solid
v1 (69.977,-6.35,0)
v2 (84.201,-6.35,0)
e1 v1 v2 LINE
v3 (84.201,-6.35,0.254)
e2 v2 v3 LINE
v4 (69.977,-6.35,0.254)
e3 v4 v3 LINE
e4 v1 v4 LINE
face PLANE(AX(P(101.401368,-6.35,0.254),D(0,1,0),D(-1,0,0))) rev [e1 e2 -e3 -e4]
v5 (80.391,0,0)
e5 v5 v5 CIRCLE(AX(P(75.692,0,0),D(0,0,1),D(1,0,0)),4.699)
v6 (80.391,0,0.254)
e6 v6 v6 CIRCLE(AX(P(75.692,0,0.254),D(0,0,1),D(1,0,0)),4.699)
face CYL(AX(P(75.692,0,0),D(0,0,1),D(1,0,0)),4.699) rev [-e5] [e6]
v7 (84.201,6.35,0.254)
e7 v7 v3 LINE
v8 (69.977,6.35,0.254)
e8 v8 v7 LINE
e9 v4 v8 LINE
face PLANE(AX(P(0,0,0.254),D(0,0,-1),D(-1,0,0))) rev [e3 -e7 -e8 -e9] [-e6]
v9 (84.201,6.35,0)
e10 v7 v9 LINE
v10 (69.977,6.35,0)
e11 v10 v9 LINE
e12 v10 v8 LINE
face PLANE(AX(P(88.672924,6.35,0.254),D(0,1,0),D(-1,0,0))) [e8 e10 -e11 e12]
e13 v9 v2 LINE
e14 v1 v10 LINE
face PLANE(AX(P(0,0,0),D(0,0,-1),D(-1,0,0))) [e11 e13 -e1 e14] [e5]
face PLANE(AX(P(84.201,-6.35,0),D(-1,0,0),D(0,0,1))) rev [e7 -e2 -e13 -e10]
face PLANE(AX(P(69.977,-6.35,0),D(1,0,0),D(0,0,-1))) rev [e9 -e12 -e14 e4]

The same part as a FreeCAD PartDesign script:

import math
import FreeCAD as App
import Part
import Sketcher

V = App.Vector
Q = App.Units.Quantity


def add_polygon(sketch, points):
    """Adds a closed chain of lines whose ends are joined by coincident constraints."""
    first, n = sketch.GeometryCount, len(points)
    for a, b in zip(points, points[1:] + points[:1]):
        sketch.addGeometry(Part.LineSegment(App.Vector(*a, 0), App.Vector(*b, 0)), False)
    for i in range(n):
        sketch.addConstraint(Sketcher.Constraint("Coincident", first + i, 2, first + (i + 1) % n, 1))

doc = App.newDocument("Part")
body = doc.addObject("PartDesign::Body", "Body")

sketch1 = doc.addObject("Sketcher::SketchObject", "Sketch")
body.addObject(sketch1)
sketch1.AttachmentSupport = (doc.XY_Plane, [""])
sketch1.MapMode = "FlatFace"
sketch1.addGeometry([
    Part.LineSegment(V(67.2, 76.2, 0), V(8.7, 17.7, 0)),
    Part.LineSegment(V(8.7, 17.7, 0), V(7.2, 14.1, 0)),
    Part.ArcOfCircle(Part.Circle(V(0, 0, 0), V(0, 0, 1), 15.9), math.radians(-18), math.radians(63)),
    Part.LineSegment(V(15.1, -4.9, 0), V(18.6, -6.3, 0)),
    Part.LineSegment(V(18.6, -6.3, 0), V(101.4, -6.3, 0)),
    Part.ArcOfCircle(Part.Circle(V(0, 0, 0), V(0, 0, 1), 101.6), math.radians(-4), math.radians(49)),
    Part.ArcOfCircle(Part.Circle(V(0, 0, 0), V(0, 0, 1), 88.9), math.radians(4), math.radians(41)),
    Part.LineSegment(V(88.7, 6.3, 0), V(27.9, 6.3, 0)),
    Part.ArcOfCircle(Part.Circle(V(0, 0, 0), V(0, 0, 1), 28.6), math.radians(12.84), math.radians(32.16)),
    Part.LineSegment(V(24.2, 15.2, 0), V(67.2, 58.2, 0)),
], False)
sketch1.addConstraint([
    Sketcher.Constraint("Coincident", 0, 2, 1, 1),
    Sketcher.Constraint("Coincident", 1, 2, 2, 2),
    Sketcher.Constraint("Coincident", 2, 1, 3, 1),
    Sketcher.Constraint("Coincident", 3, 2, 4, 1),
    Sketcher.Constraint("Coincident", 4, 2, 5, 1),
    Sketcher.Constraint("Coincident", 5, 2, 0, 1),
    Sketcher.Constraint("Coincident", 6, 1, 7, 1),
    Sketcher.Constraint("Coincident", 7, 2, 8, 1),
    Sketcher.Constraint("Coincident", 8, 2, 9, 1),
    Sketcher.Constraint("Coincident", 9, 2, 6, 2),
    Sketcher.Constraint("Horizontal", 4),
    Sketcher.Constraint("Horizontal", 7),
    Sketcher.Constraint("Coincident", 2, 3, -1, 1),
    Sketcher.Constraint("Coincident", 5, 3, -1, 1),
    Sketcher.Constraint("Coincident", 6, 3, -1, 1),
    Sketcher.Constraint("Coincident", 8, 3, -1, 1),
    Sketcher.Constraint("Perpendicular", 1, 3),
    Sketcher.Constraint("Parallel", 0, 9),
    Sketcher.Constraint("Equal", 1, 3),
    Sketcher.Constraint("Radius", 5, Q("4 in")),
    Sketcher.Constraint("Radius", 6, Q("3.5 in")),
    Sketcher.Constraint("Angle", 0, Q("-135 deg")),
    Sketcher.Constraint("Radius", 2, Q("0.625 in")),
    Sketcher.Constraint("Radius", 8, Q("1.125 in")),
    Sketcher.Constraint("Angle", 1, Q("-112.5 deg")),
    Sketcher.Constraint("DistanceY", 4, 2, 6, 1, Q("0.5 in")),
    Sketcher.Constraint("DistanceY", 3, 2, -1, 1, Q("0.25 in")),
    Sketcher.Constraint("DistanceY", 2, 1, -1, 1, 4.882301),
    Sketcher.Constraint("DistanceY", -1, 1, 9, 2, 58.211098),
    Sketcher.Constraint("DistanceX", 5, 2, 4, 2, 34.189901),
])
pad1 = doc.addObject("PartDesign::Pad", "Pad")
body.addObject(pad1)
pad1.Profile = sketch1
pad1.Length = Q("0.01 in")

sketch2 = doc.addObject("Sketcher::SketchObject", "Sketch001")
body.addObject(sketch2)
sketch2.AttachmentSupport = (doc.XY_Plane, [""])
sketch2.MapMode = "FlatFace"
sketch2.AttachmentOffset = App.Placement(V(0, 0, 0.01 * 25.4), App.Rotation())
sketch2.addGeometry([
    Part.Circle(V(22.2, 0, 0), V(0, 0, 1), 4.7),
    Part.Circle(V(36.2, 0, 0), V(0, 0, 1), 4.7),
    Part.Circle(V(61.7, 0, 0), V(0, 0, 1), 4.7),
    Part.Circle(V(75.7, 0, 0), V(0, 0, 1), 4.7),
    Part.Circle(V(95.2, 0, 0), V(0, 0, 1), 4.7),
    Part.Circle(V(15.7, 15.7, 0), V(0, 0, 1), 4.7),
    Part.Circle(V(25.6, 25.6, 0), V(0, 0, 1), 4.7),
    Part.Circle(V(43.6, 43.6, 0), V(0, 0, 1), 4.7),
    Part.Circle(V(53.5, 53.5, 0), V(0, 0, 1), 4.7),
    Part.Circle(V(92, 24.7, 0), V(0, 0, 1), 4.7),
    Part.Circle(V(82.5, 47.6, 0), V(0, 0, 1), 4.7),
    Part.Circle(V(67.4, 67.4, 0), V(0, 0, 1), 4.7),
], False)
sketch2.addConstraint([
    Sketcher.Constraint("Equal", 0, 1),
    Sketcher.Constraint("Equal", 1, 2),
    Sketcher.Constraint("Equal", 2, 3),
    Sketcher.Constraint("Equal", 3, 4),
    Sketcher.Constraint("Equal", 4, 5),
    Sketcher.Constraint("Equal", 5, 6),
    Sketcher.Constraint("Equal", 6, 7),
    Sketcher.Constraint("Equal", 7, 8),
    Sketcher.Constraint("Equal", 8, 9),
    Sketcher.Constraint("Equal", 9, 10),
    Sketcher.Constraint("Equal", 10, 11),
    Sketcher.Constraint("PointOnObject", 0, 3, -1),
    Sketcher.Constraint("PointOnObject", 1, 3, -1),
    Sketcher.Constraint("PointOnObject", 2, 3, -1),
    Sketcher.Constraint("PointOnObject", 3, 3, -1),
    Sketcher.Constraint("PointOnObject", 4, 3, -1),
    Sketcher.Constraint("Diameter", 0, Q("0.37 in")),
    Sketcher.Constraint("DistanceX", -1, 1, 2, 3, Q("2.43 in")),
    Sketcher.Constraint("DistanceX", -1, 1, 3, 3, Q("2.98 in")),
    Sketcher.Constraint("DistanceX", -1, 1, 4, 3, Q("3.75 in")),
    Sketcher.Constraint("DistanceX", 0, 3, 1, 3, Q("0.55 in")),
    Sketcher.Constraint("DistanceX", -1, 1, 0, 3, Q("0.875 in")),
    Sketcher.Constraint("DistanceY", -1, 1, 10, 3, Q("1.875 in")),
    Sketcher.Constraint("DistanceX", 11, 3, 10, 3, 15.136999),
    Sketcher.Constraint("DistanceX", -1, 1, 5, 3, 15.715448),
    Sketcher.Constraint("DistanceY", -1, 1, 5, 3, 15.715448),
    Sketcher.Constraint("DistanceX", -1, 1, 6, 3, 25.59373),
    Sketcher.Constraint("DistanceY", -1, 1, 6, 3, 25.59373),
    Sketcher.Constraint("DistanceX", -1, 1, 10, 3, 82.48892),
    Sketcher.Constraint("DistanceY", -1, 1, 11, 3, 67.351921),
    Sketcher.Constraint("DistanceX", 7, 3, 8, 3, 9.878282),
    Sketcher.Constraint("DistanceY", 7, 3, 8, 3, 9.878282),
    Sketcher.Constraint("DistanceX", 5, 3, 8, 3, 37.806878),
    Sketcher.Constraint("DistanceY", 5, 3, 8, 3, 37.806878),
    Sketcher.Constraint("DistanceX", 8, 3, 9, 3, 38.482108),
    Sketcher.Constraint("DistanceY", 9, 3, 7, 3, 18.991531),
])
pocket1 = doc.addObject("PartDesign::Pocket", "Pocket")
body.addObject(pocket1)
pocket1.Profile = sketch2
pocket1.Type = "ThroughAll"

sketch3 = doc.addObject("Sketcher::SketchObject", "Sketch002")
body.addObject(sketch3)
sketch3.AttachmentSupport = (doc.XY_Plane, [""])
sketch3.MapMode = "FlatFace"
sketch3.AttachmentOffset = App.Placement(V(0, 0, 0.01 * 25.4), App.Rotation())
add_polygon(sketch3, [(17.1, 26), (15.3, 24.2), (15.7, 23.8), (17.5, 25.6)])
add_polygon(sketch3, [(45, 54), (43.2, 52.2), (43.6, 51.7), (45.4, 53.5)])
add_polygon(sketch3, [(27.9, -5.7), (27.9, -6.3), (30.5, -6.3), (30.5, -5.7)])
add_polygon(sketch3, [(67.4, -5.7), (67.4, -6.3), (70, -6.3), (70, -5.7)])
add_polygon(sketch3, [(31, 40), (29.2, 38.2), (29.7, 37.8), (31.5, 39.6)])
add_polygon(sketch3, [(56.8, 65.8), (55, 64), (55.5, 63.6), (57.3, 65.4)])
add_polygon(sketch3, [(47.7, -5.7), (47.7, -6.3), (50.2, -6.3), (50.2, -5.7)])
add_polygon(sketch3, [(84.2, -5.7), (84.2, -6.3), (86.7, -6.3), (86.7, -5.7)])
add_polygon(sketch3, [(99.9, 14.4), (100.3, 11.9), (101.5, 12.1), (101.2, 14.6)])
add_polygon(sketch3, [(93.8, 37.5), (94.9, 38), (94, 40.3), (92.8, 39.8)])
add_polygon(sketch3, [(79.3, 62.5), (80.9, 60.5), (81.9, 61.2), (80.3, 63.2)])
add_polygon(sketch3, [(13.6, 7), (14.6, 4.7), (15.7, 5.1), (14.8, 7.5)])
sketch3.addConstraint([
    Sketcher.Constraint("Vertical", 8),
    Sketcher.Constraint("Horizontal", 9),
    Sketcher.Constraint("Vertical", 10),
    Sketcher.Constraint("Horizontal", 11),
    Sketcher.Constraint("Vertical", 12),
    Sketcher.Constraint("Horizontal", 13),
    Sketcher.Constraint("Vertical", 14),
    Sketcher.Constraint("Horizontal", 15),
    Sketcher.Constraint("Vertical", 24),
    Sketcher.Constraint("Horizontal", 25),
    Sketcher.Constraint("Vertical", 26),
    Sketcher.Constraint("Horizontal", 27),
    Sketcher.Constraint("Vertical", 28),
    Sketcher.Constraint("Horizontal", 29),
    Sketcher.Constraint("Vertical", 30),
    Sketcher.Constraint("Horizontal", 31),
    Sketcher.Constraint("Perpendicular", 0, 1),
    Sketcher.Constraint("Perpendicular", 1, 2),
    Sketcher.Constraint("Perpendicular", 2, 3),
    Sketcher.Constraint("Perpendicular", 3, 4),
    Sketcher.Constraint("Perpendicular", 4, 5),
    Sketcher.Constraint("Perpendicular", 5, 6),
    Sketcher.Constraint("Perpendicular", 6, 7),
    Sketcher.Constraint("Perpendicular", 7, 16),
    Sketcher.Constraint("Perpendicular", 16, 17),
    Sketcher.Constraint("Perpendicular", 17, 18),
    Sketcher.Constraint("Perpendicular", 18, 19),
    Sketcher.Constraint("Perpendicular", 19, 20),
    Sketcher.Constraint("Perpendicular", 20, 21),
    Sketcher.Constraint("Perpendicular", 21, 22),
    Sketcher.Constraint("Perpendicular", 22, 23),
    Sketcher.Constraint("Perpendicular", 32, 33),
    Sketcher.Constraint("Perpendicular", 33, 34),
    Sketcher.Constraint("Perpendicular", 34, 35),
    Sketcher.Constraint("Perpendicular", 36, 37),
    Sketcher.Constraint("Perpendicular", 37, 38),
    Sketcher.Constraint("Perpendicular", 38, 39),
    Sketcher.Constraint("Perpendicular", 40, 41),
    Sketcher.Constraint("Perpendicular", 41, 42),
    Sketcher.Constraint("Perpendicular", 42, 43),
    Sketcher.Constraint("Parallel", 39, 44),
    Sketcher.Constraint("Perpendicular", 44, 45),
    Sketcher.Constraint("Perpendicular", 45, 46),
    Sketcher.Constraint("Perpendicular", 46, 47),
    Sketcher.Constraint("Horizontal", 9, 2, 12, 2),
    Sketcher.Constraint("Horizontal", 11, 2, 14, 2),
    Sketcher.Constraint("Horizontal", 13, 2, 24, 2),
    Sketcher.Constraint("Horizontal", 15, 2, 26, 2),
    Sketcher.Constraint("Horizontal", 25, 2, 28, 2),
    Sketcher.Constraint("Horizontal", 27, 2, 30, 2),
    Sketcher.Constraint("Equal", 11, 13),
    Sketcher.Constraint("Equal", 15, 25),
    Sketcher.Constraint("Equal", 27, 29),
    Sketcher.Constraint("Equal", 2, 4),
    Sketcher.Constraint("Equal", 3, 5),
    Sketcher.Constraint("Equal", 6, 16),
    Sketcher.Constraint("Equal", 7, 17),
    Sketcher.Constraint("Equal", 18, 20),
    Sketcher.Constraint("Equal", 19, 21),
    Sketcher.Constraint("Equal", 22, 32),
    Sketcher.Constraint("Equal", 35, 36),
    Sketcher.Constraint("Equal", 34, 37),
    Sketcher.Constraint("Equal", 39, 40),
    Sketcher.Constraint("Equal", 38, 41),
    Sketcher.Constraint("Equal", 42, 44),
    Sketcher.Constraint("Equal", 43, 45),
    Sketcher.Constraint("DistanceX", 9, 1, 9, 2, Q("0.1 in")),
    Sketcher.Constraint("Angle", 0, Q("-135 deg")),
    Sketcher.Constraint("Distance", 0, Q("0.1 in")),
    Sketcher.Constraint("DistanceX", -1, 1, 8, 2, Q("1.1 in")),
    Sketcher.Constraint("Angle", 32, Q("-82.5 deg")),
    Sketcher.Constraint("Angle", 36, Q("22.5 deg")),
    Sketcher.Constraint("Angle", 40, Q("-52.5 deg")),
    Sketcher.Constraint("Distance", 33, Q("0.05 in")),
    Sketcher.Constraint("DistanceY", 8, 2, 8, 1, Q("0.025 in")),
    Sketcher.Constraint("DistanceY", 8, 2, -1, 1, Q("0.25 in")),
    Sketcher.Constraint("DistanceX", 13, 2, 28, 2, Q("0.56 in")),
    Sketcher.Constraint("Distance", 1, Q("0.025 in")),
    Sketcher.Constraint("DistanceX", -1, 1, 12, 2, Q("2.655 in")),
    Sketcher.Constraint("DistanceX", -1, 1, 24, 2, Q("1.8775 in")),
    Sketcher.Constraint("DistanceX", -1, 1, 2, 2, 17.511499),
    Sketcher.Constraint("DistanceX", -1, 1, 32, 2, 100.266999),
    Sketcher.Constraint("DistanceX", 16, 2, 4, 2, 13.964298),
    Sketcher.Constraint("DistanceY", 16, 2, 4, 2, 13.964298),
    Sketcher.Constraint("DistanceX", 0, 2, 16, 2, 13.964298),
    Sketcher.Constraint("DistanceY", 0, 2, 16, 2, 13.964298),
    Sketcher.Constraint("DistanceY", 6, 2, 20, 2, 10.5069),
    Sketcher.Constraint("DistanceX", 7, 2, 21, 2, 10.5069),
    Sketcher.Constraint("DistanceY", 35, 2, 36, 2, 23.512602),
    Sketcher.Constraint("DistanceX", 36, 2, 33, 2, 6.587302),
    Sketcher.Constraint("DistanceY", 37, 2, 41, 2, 20.932198),
    Sketcher.Constraint("DistanceY", 41, 2, 22, 2, 4.147099),
    Sketcher.Constraint("DistanceY", 46, 2, 2, 2, 18.102299),
    Sketcher.Constraint("DistanceY", -1, 1, 0, 2, 24.246692),
    Sketcher.Constraint("DistanceX", -1, 1, 42, 2, 80.335352),
    Sketcher.Constraint("DistanceX", -1, 1, 45, 2, 15.739259),
])
pocket2 = doc.addObject("PartDesign::Pocket", "Pocket001")
body.addObject(pocket2)
pocket2.Profile = sketch3
pocket2.Type = "ThroughAll"

sketch4 = doc.addObject("Sketcher::SketchObject", "Sketch003")
body.addObject(sketch4)
sketch4.AttachmentSupport = (doc.XY_Plane, [""])
sketch4.MapMode = "FlatFace"
sketch4.AttachmentOffset = App.Placement(V(0, 0, 0.01 * 25.4), App.Rotation())
add_polygon(sketch4, [(-6, 90), (-6, -20), (115, -20), (115, 90)])
add_polygon(sketch4, [(84, -8), (70, -8), (70, 8), (84, 8)])
sketch4.addConstraint([
    Sketcher.Constraint("Vertical", 0),
    Sketcher.Constraint("Horizontal", 1),
    Sketcher.Constraint("Vertical", 2),
    Sketcher.Constraint("Horizontal", 3),
    Sketcher.Constraint("Horizontal", 4),
    Sketcher.Constraint("Vertical", 5),
    Sketcher.Constraint("Horizontal", 6),
    Sketcher.Constraint("Vertical", 7),
    Sketcher.Constraint("DistanceY", 5, 1, 5, 2, Q("0.6 in")),
    Sketcher.Constraint("DistanceX", 4, 2, 4, 1, Q("0.56 in")),
    Sketcher.Constraint("DistanceY", 4, 2, -1, 1, Q("0.3 in")),
    Sketcher.Constraint("DistanceX", -1, 1, 4, 2, Q("2.755 in")),
    Sketcher.Constraint("DistanceX", 1, 1, 1, 2, 121.447),
    Sketcher.Constraint("DistanceY", 0, 2, 0, 1, 109.618),
    Sketcher.Constraint("DistanceX", 0, 2, -1, 1, 6.309),
    Sketcher.Constraint("DistanceY", 0, 2, -1, 1, 19.888),
])
pocket3 = doc.addObject("PartDesign::Pocket", "Pocket002")
body.addObject(pocket3)
pocket3.Profile = sketch4
pocket3.Type = "ThroughAll"

doc.recompute()
